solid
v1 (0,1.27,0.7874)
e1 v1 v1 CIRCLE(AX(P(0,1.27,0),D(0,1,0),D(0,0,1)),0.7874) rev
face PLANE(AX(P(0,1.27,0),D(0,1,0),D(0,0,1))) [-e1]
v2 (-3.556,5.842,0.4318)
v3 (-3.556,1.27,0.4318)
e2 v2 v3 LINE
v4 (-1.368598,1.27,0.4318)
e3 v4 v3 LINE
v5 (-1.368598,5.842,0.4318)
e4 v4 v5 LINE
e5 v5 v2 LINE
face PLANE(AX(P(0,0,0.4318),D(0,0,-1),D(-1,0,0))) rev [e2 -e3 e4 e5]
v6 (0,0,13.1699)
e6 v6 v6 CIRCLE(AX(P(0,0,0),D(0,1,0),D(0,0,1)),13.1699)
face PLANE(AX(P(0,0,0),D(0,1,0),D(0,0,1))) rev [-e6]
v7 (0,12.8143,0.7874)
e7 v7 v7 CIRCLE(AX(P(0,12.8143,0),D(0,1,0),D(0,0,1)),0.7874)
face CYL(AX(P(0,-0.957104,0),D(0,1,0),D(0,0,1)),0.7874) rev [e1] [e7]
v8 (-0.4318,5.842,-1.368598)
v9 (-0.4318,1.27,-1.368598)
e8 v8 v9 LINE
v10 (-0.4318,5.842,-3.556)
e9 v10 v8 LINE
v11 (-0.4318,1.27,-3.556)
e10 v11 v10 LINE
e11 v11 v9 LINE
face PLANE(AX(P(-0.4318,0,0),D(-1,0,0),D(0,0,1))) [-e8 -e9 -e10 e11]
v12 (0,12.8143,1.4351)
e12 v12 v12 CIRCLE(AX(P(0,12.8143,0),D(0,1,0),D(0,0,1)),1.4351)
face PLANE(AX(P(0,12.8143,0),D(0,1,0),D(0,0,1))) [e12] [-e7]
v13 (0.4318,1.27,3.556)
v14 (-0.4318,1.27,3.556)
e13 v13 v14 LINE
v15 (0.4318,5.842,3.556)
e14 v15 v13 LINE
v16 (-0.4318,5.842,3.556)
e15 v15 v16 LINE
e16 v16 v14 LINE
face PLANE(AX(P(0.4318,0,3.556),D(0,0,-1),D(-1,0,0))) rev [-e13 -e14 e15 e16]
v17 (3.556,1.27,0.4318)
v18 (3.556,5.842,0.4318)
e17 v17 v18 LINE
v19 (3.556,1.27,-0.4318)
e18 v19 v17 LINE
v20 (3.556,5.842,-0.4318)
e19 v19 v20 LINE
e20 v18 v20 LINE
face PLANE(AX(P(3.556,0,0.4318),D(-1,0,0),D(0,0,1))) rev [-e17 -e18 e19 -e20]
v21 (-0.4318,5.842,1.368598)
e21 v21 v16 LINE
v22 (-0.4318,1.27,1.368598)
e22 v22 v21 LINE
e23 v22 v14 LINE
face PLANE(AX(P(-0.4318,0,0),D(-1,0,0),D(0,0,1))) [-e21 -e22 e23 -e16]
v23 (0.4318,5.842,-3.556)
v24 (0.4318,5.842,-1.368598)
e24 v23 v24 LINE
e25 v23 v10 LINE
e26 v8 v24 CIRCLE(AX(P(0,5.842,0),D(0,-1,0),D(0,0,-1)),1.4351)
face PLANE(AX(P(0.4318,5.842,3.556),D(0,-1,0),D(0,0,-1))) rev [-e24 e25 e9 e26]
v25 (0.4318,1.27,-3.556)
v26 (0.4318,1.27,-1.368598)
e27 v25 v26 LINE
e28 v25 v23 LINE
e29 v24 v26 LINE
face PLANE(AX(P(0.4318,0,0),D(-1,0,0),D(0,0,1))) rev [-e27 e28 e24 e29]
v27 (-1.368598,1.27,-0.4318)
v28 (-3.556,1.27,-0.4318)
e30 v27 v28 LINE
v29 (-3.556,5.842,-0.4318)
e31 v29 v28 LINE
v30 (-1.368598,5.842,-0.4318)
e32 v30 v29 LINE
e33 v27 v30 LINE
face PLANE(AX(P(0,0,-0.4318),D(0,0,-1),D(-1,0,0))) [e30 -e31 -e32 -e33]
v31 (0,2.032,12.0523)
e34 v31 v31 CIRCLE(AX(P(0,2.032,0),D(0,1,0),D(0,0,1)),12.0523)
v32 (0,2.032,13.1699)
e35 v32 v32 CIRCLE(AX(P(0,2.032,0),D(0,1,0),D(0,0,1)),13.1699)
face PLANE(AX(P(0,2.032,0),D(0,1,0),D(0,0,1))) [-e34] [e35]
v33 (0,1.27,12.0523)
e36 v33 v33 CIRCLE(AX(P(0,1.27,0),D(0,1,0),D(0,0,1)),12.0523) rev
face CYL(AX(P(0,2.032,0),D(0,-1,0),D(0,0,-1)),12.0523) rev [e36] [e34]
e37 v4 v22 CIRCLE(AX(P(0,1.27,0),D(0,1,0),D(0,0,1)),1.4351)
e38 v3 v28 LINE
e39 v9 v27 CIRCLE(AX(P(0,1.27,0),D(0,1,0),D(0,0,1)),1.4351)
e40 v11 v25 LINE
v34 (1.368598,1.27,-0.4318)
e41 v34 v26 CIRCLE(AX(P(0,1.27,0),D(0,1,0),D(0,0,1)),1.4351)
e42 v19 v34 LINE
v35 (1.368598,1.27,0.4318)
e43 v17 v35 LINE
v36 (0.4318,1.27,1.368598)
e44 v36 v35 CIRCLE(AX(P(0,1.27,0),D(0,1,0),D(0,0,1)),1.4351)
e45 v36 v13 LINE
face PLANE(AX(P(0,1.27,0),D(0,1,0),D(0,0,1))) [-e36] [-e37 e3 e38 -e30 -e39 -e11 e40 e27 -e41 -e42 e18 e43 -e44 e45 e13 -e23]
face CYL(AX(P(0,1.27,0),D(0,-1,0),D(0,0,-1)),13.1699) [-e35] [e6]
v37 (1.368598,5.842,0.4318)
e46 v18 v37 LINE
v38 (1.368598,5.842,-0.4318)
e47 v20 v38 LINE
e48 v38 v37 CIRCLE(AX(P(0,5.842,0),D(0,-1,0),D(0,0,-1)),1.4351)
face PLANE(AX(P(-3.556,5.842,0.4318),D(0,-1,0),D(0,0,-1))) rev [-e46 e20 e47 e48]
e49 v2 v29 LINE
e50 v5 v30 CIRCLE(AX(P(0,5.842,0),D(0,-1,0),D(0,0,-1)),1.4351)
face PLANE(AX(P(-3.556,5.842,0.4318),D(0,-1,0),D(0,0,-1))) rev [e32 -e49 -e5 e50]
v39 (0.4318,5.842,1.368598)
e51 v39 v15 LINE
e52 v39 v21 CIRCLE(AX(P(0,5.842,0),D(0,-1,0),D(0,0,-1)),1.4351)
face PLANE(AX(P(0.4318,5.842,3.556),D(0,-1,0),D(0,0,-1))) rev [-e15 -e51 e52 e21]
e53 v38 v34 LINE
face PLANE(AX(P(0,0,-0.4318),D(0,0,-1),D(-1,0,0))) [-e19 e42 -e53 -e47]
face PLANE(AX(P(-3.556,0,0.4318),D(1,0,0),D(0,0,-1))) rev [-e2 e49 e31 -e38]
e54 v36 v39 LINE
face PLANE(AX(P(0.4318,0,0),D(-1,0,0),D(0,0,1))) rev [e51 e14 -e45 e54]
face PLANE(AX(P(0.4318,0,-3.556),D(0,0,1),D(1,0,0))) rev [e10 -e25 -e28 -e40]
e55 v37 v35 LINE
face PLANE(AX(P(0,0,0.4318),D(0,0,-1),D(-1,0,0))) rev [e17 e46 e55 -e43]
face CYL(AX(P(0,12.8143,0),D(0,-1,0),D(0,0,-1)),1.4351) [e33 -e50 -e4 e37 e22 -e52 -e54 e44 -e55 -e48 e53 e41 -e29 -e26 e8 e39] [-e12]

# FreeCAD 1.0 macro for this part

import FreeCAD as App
import Part
import Sketcher
from FreeCAD import Vector
Q = App.Units.Quantity


def add_polygon(sketch, points):
    """Adds a closed chain of lines whose ends are joined by coincident constraints."""
    first, n = sketch.GeometryCount, len(points)
    for a, b in zip(points, points[1:] + points[:1]):
        sketch.addGeometry(Part.LineSegment(App.Vector(*a, 0), App.Vector(*b, 0)), False)
    for i in range(n):
        sketch.addConstraint(Sketcher.Constraint("Coincident", first + i, 2, first + (i + 1) % n, 1))

doc = App.newDocument("Part")
params = doc.addObject("Spreadsheet::Sheet", "Params")
for row, (alias, value) in enumerate([
    ("sketch1_diameter", "1.037 in"),
    ("pad1_length", "0.05 in"),
    ("sketch2_diameter", "1.037 in"),
    ("sketch2_diameter2", "0.949 in"),
    ("pad2_length", "0.03 in"),
    ("sketch3_diameter", "0.113 in"),
    ("pad3_length", "0.4545 in"),
    ("sketch4_width", "0.28 in"),
    ("sketch4_height", "0.23 in"),
    ("pad4_length", "0.034 in"),
    ("sketch5_width", "0.23 in"),
    ("sketch5_height", "0.28 in"),
    ("pad5_length", "0.034 in"),
    ("sketch6_diameter", "0.062 in"),
    ("pocket1_length", "0.4545 in"),
], start=1):
    params.set(f"A{row}", alias)
    params.set(f"B{row}", "=" + value)
    params.setAlias(f"B{row}", alias)

body = doc.addObject("PartDesign::Body", "Body")

sketch1 = body.newObject("Sketcher::SketchObject", "Sketch")
sketch1.AttachmentSupport = (doc.getObject("XZ_Plane"), [""])
sketch1.MapMode = "FlatFace"
sketch1.addGeometry(Part.Circle(Vector(0, 0, 0), Vector(0, 0, 1), 13), False)
sketch1.addConstraint([
    Sketcher.Constraint("Coincident", 0, 3, -1, 1),
    Sketcher.Constraint("Diameter", 0, Q("1.037 in")),
])
sketch1.setExpression("Constraints[1]", "Params.sketch1_diameter")
pad1 = body.newObject("PartDesign::Pad", "Pad")
pad1.Profile = sketch1
pad1.setExpression("Length", "Params.pad1_length")
pad1.Reversed = True

sketch2 = body.newObject("Sketcher::SketchObject", "Sketch001")
sketch2.AttachmentSupport = (doc.getObject("XZ_Plane"), [""])
sketch2.MapMode = "FlatFace"
sketch2.AttachmentOffset = App.Placement(Vector(0, 0, -0.05 * 25.4), App.Rotation())
sketch2.addGeometry([
    Part.Circle(Vector(0, 0, 0), Vector(0, 0, 1), 13),
    Part.Circle(Vector(0, 0, 0), Vector(0, 0, 1), 12),
], False)
sketch2.addConstraint([
    Sketcher.Constraint("Coincident", 0, 3, -1, 1),
    Sketcher.Constraint("Coincident", 1, 3, -1, 1),
    Sketcher.Constraint("Diameter", 0, Q("1.037 in")),
    Sketcher.Constraint("Diameter", 1, Q("0.949 in")),
])
sketch2.setExpression("Constraints[2]", "Params.sketch2_diameter")
sketch2.setExpression("Constraints[3]", "Params.sketch2_diameter2")
pad2 = body.newObject("PartDesign::Pad", "Pad001")
pad2.Profile = sketch2
pad2.setExpression("Length", "Params.pad2_length")
pad2.Reversed = True

sketch3 = body.newObject("Sketcher::SketchObject", "Sketch002")
sketch3.AttachmentSupport = (doc.getObject("XZ_Plane"), [""])
sketch3.MapMode = "FlatFace"
sketch3.AttachmentOffset = App.Placement(Vector(0, 0, -0.05 * 25.4), App.Rotation())
sketch3.addGeometry(Part.Circle(Vector(0, 0, 0), Vector(0, 0, 1), 1.4), False)
sketch3.addConstraint([
    Sketcher.Constraint("Coincident", 0, 3, -1, 1),
    Sketcher.Constraint("Diameter", 0, Q("0.113 in")),
])
sketch3.setExpression("Constraints[1]", "Params.sketch3_diameter")
pad3 = body.newObject("PartDesign::Pad", "Pad002")
pad3.Profile = sketch3
pad3.setExpression("Length", "Params.pad3_length")
pad3.Reversed = True

sketch4 = body.newObject("Sketcher::SketchObject", "Sketch003")
sketch4.AttachmentSupport = (doc.getObject("XY_Plane"), [""])
sketch4.MapMode = "FlatFace"
add_polygon(sketch4, [(-4, 6), (-4, 0), (4, 0), (4, 6)])
sketch4.addConstraint([
    Sketcher.Constraint("Vertical", 0),
    Sketcher.Constraint("Horizontal", 1),
    Sketcher.Constraint("Vertical", 2),
    Sketcher.Constraint("Horizontal", 3),
    Sketcher.Constraint("Symmetric", 0, 2, 1, 2, -1, 1),
    Sketcher.Constraint("DistanceX", 1, 1, 1, 2, Q("0.28 in")),
    Sketcher.Constraint("DistanceY", 0, 2, 0, 1, Q("0.23 in")),
])
sketch4.setExpression("Constraints[9]", "Params.sketch4_width")
sketch4.setExpression("Constraints[10]", "Params.sketch4_height")
pad4 = body.newObject("PartDesign::Pad", "Pad003")
pad4.Profile = sketch4
pad4.setExpression("Length", "Params.pad4_length")
pad4.Midplane = True

sketch5 = body.newObject("Sketcher::SketchObject", "Sketch004")
sketch5.AttachmentSupport = (doc.getObject("YZ_Plane"), [""])
sketch5.MapMode = "FlatFace"
add_polygon(sketch5, [(6, 4), (0, 4), (0, -4), (6, -4)])
sketch5.addConstraint([
    Sketcher.Constraint("Horizontal", 0),
    Sketcher.Constraint("Vertical", 1),
    Sketcher.Constraint("Horizontal", 2),
    Sketcher.Constraint("Vertical", 3),
    Sketcher.Constraint("Symmetric", 0, 2, 1, 2, -1, 1),
    Sketcher.Constraint("DistanceX", 0, 2, 0, 1, Q("0.23 in")),
    Sketcher.Constraint("DistanceY", 1, 2, 1, 1, Q("0.28 in")),
])
sketch5.setExpression("Constraints[9]", "Params.sketch5_width")
sketch5.setExpression("Constraints[10]", "Params.sketch5_height")
pad5 = body.newObject("PartDesign::Pad", "Pad004")
pad5.Profile = sketch5
pad5.setExpression("Length", "Params.pad5_length")
pad5.Midplane = True

sketch6 = body.newObject("Sketcher::SketchObject", "Sketch005")
sketch6.AttachmentSupport = (doc.getObject("XZ_Plane"), [""])
sketch6.MapMode = "FlatFace"
sketch6.AttachmentOffset = App.Placement(Vector(0, 0, -0.5045 * 25.4), App.Rotation())
sketch6.addGeometry(Part.Circle(Vector(0, 0, 0), Vector(0, 0, 1), 0.8), False)
sketch6.addConstraint([
    Sketcher.Constraint("Coincident", 0, 3, -1, 1),
    Sketcher.Constraint("Diameter", 0, Q("0.062 in")),
])
sketch6.setExpression("Constraints[1]", "Params.sketch6_diameter")
pocket1 = body.newObject("PartDesign::Pocket", "Pocket")
pocket1.Profile = sketch6
pocket1.setExpression("Length", "Params.pocket1_length")
pocket1.Reversed = True

doc.recompute()
